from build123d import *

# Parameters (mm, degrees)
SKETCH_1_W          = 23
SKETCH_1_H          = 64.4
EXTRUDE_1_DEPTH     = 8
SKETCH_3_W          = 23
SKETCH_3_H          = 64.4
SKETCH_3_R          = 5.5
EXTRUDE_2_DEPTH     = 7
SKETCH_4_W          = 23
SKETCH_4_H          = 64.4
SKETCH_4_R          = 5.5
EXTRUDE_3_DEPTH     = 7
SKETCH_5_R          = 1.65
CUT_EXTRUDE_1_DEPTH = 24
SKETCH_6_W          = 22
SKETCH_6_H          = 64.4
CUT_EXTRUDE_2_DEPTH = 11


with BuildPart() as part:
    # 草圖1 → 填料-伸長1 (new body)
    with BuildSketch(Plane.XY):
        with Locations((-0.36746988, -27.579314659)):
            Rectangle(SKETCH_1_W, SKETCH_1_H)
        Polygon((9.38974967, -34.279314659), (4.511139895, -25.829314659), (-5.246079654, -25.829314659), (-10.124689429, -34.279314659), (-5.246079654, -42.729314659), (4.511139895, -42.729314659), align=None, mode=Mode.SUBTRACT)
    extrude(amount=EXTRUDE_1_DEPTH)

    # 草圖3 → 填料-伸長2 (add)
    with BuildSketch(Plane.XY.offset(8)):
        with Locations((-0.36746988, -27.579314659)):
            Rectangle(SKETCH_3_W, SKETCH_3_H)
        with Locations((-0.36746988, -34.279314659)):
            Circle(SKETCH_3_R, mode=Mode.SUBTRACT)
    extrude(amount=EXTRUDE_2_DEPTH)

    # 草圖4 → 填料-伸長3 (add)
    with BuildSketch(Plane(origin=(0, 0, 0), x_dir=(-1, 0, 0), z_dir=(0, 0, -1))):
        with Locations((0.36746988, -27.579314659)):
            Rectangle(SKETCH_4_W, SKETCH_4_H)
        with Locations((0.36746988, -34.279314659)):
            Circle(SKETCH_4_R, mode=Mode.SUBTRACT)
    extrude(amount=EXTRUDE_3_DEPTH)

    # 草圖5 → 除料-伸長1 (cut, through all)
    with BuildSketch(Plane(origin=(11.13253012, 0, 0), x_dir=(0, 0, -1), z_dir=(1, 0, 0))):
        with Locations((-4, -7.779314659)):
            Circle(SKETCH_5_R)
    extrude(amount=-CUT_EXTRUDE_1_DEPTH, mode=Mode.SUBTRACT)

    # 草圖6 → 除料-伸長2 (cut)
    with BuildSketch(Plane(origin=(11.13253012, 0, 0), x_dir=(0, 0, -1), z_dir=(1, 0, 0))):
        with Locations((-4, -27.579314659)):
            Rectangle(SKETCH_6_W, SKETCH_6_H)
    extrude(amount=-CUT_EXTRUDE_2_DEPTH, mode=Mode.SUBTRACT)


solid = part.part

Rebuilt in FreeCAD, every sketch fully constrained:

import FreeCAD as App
import Part
import Sketcher
from FreeCAD import Vector
Q = App.Units.Quantity

doc = App.newDocument("Part")
body = doc.addObject("PartDesign::Body", "Body")

# Sketch on XY plane
sketch1 = doc.addObject("Sketcher::SketchObject", "Sketch")
body.addObject(sketch1)
sketch1.AttachmentSupport = (doc.XY_Plane, [""])
sketch1.MapMode = "FlatFace"
sketch1.addGeometry([
    Part.LineSegment(Vector(-11.86747, 4.620685, 0), Vector(-11.86747, -59.779315, 0)),  # 0
    Part.LineSegment(Vector(-11.86747, -59.779315, 0), Vector(11.13253, -59.779315, 0)),  # 1
    Part.LineSegment(Vector(11.13253, -59.779315, 0), Vector(11.13253, 4.620685, 0)),  # 2
    Part.LineSegment(Vector(11.13253, 4.620685, 0), Vector(-11.86747, 4.620685, 0)),  # 3
    Part.LineSegment(Vector(4.51114, -25.829315, 0), Vector(9.38975, -34.279315, 0)),  # 4
    Part.LineSegment(Vector(9.38975, -34.279315, 0), Vector(4.51114, -42.729315, 0)),  # 5
    Part.LineSegment(Vector(4.51114, -42.729315, 0), Vector(-5.24608, -42.729315, 0)),  # 6
    Part.LineSegment(Vector(-5.24608, -42.729315, 0), Vector(-10.124689, -34.279315, 0)),  # 7
    Part.LineSegment(Vector(-10.124689, -34.279315, 0), Vector(-5.24608, -25.829315, 0)),  # 8
    Part.LineSegment(Vector(-5.24608, -25.829315, 0), Vector(4.51114, -25.829315, 0)),  # 9
], False)
sketch1.addConstraint([
    Sketcher.Constraint("Coincident", 0, 2, 1, 1),
    Sketcher.Constraint("Coincident", 1, 2, 2, 1),
    Sketcher.Constraint("Coincident", 2, 2, 3, 1),
    Sketcher.Constraint("Coincident", 3, 2, 0, 1),
    Sketcher.Constraint("Coincident", 4, 2, 5, 1),
    Sketcher.Constraint("Coincident", 5, 2, 6, 1),
    Sketcher.Constraint("Coincident", 6, 2, 7, 1),
    Sketcher.Constraint("Coincident", 7, 2, 8, 1),
    Sketcher.Constraint("Coincident", 8, 2, 9, 1),
    Sketcher.Constraint("Coincident", 9, 2, 4, 1),
    Sketcher.Constraint("Vertical", 0),
    Sketcher.Constraint("Horizontal", 1),
    Sketcher.Constraint("Vertical", 2),
    Sketcher.Constraint("Horizontal", 3),
    Sketcher.Constraint("Horizontal", 6),
    Sketcher.Constraint("Horizontal", 9),
    Sketcher.Constraint("Parallel", 4, 7),
    Sketcher.Constraint("Parallel", 5, 8),
    Sketcher.Constraint("Horizontal", 4, 2, 7, 2),
    Sketcher.Constraint("Vertical", 6, 2, 8, 2),
    Sketcher.Constraint("Vertical", 5, 2, 9, 2),
    Sketcher.Constraint("DistanceX", 1, 1, 1, 2, Q("23 mm")),
    Sketcher.Constraint("Angle", 4, Q("-60 deg")),
    Sketcher.Constraint("DistanceY", 0, 2, 0, 1, Q("64.4 mm")),
    Sketcher.Constraint("DistanceY", 1, 2, 4, 2, Q("25.5 mm")),
    Sketcher.Constraint("DistanceY", 6, 2, 8, 2, Q("16.9 mm")),
    Sketcher.Constraint("DistanceX", 6, 2, 6, 1, Q("9.75722 mm")),
    Sketcher.Constraint("DistanceX", 0, 2, -1, 1, Q("11.86747 mm")),
    Sketcher.Constraint("DistanceX", -1, 1, 4, 2, Q("9.38975 mm")),
    Sketcher.Constraint("DistanceY", 0, 2, -1, 1, Q("59.779315 mm")),
])
pad1 = doc.addObject("PartDesign::Pad", "Pad")
body.addObject(pad1)
pad1.Profile = sketch1
pad1.Length = 8

# Sketch on XY plane
sketch2 = doc.addObject("Sketcher::SketchObject", "Sketch001")
body.addObject(sketch2)
sketch2.AttachmentSupport = (doc.XY_Plane, [""])
sketch2.MapMode = "FlatFace"
sketch2.AttachmentOffset = App.Placement(Vector(0, 0, 8), App.Rotation())
sketch2.addGeometry([
    Part.LineSegment(Vector(-11.86747, 4.620685, 0), Vector(-11.86747, -59.779315, 0)),  # 0
    Part.LineSegment(Vector(-11.86747, -59.779315, 0), Vector(11.13253, -59.779315, 0)),  # 1
    Part.LineSegment(Vector(11.13253, -59.779315, 0), Vector(11.13253, 4.620685, 0)),  # 2
    Part.LineSegment(Vector(11.13253, 4.620685, 0), Vector(-11.86747, 4.620685, 0)),  # 3
    Part.Circle(Vector(-0.36747, -34.279315, 0), Vector(0, 0, 1), 5.5),  # 4
], False)
sketch2.addConstraint([
    Sketcher.Constraint("Coincident", 0, 2, 1, 1),
    Sketcher.Constraint("Coincident", 1, 2, 2, 1),
    Sketcher.Constraint("Coincident", 2, 2, 3, 1),
    Sketcher.Constraint("Coincident", 3, 2, 0, 1),
    Sketcher.Constraint("Vertical", 0),
    Sketcher.Constraint("Horizontal", 1),
    Sketcher.Constraint("Vertical", 2),
    Sketcher.Constraint("Horizontal", 3),
    Sketcher.Constraint("Diameter", 4, Q("11 mm")),
    Sketcher.Constraint("DistanceX", 1, 1, 1, 2, Q("23 mm")),
    Sketcher.Constraint("DistanceY", 0, 2, 0, 1, Q("64.4 mm")),
    Sketcher.Constraint("DistanceX", 0, 2, 4, 3, Q("11.5 mm")),
    Sketcher.Constraint("DistanceY", 0, 2, 4, 3, Q("25.5 mm")),
    Sketcher.Constraint("DistanceX", 4, 3, -1, 1, Q("0.36747 mm")),
    Sketcher.Constraint("DistanceY", 4, 3, -1, 1, Q("34.279315 mm")),
])
pad2 = doc.addObject("PartDesign::Pad", "Pad001")
body.addObject(pad2)
pad2.Profile = sketch2
pad2.Length = 7

# Sketch on XY plane
sketch3 = doc.addObject("Sketcher::SketchObject", "Sketch002")
body.addObject(sketch3)
sketch3.AttachmentSupport = (doc.XY_Plane, [""])
sketch3.MapMode = "FlatFace"
sketch3.addGeometry([
    Part.LineSegment(Vector(11.13253, 4.620685, 0), Vector(11.13253, -59.779315, 0)),  # 0
    Part.LineSegment(Vector(11.13253, -59.779315, 0), Vector(-11.86747, -59.779315, 0)),  # 1
    Part.LineSegment(Vector(-11.86747, -59.779315, 0), Vector(-11.86747, 4.620685, 0)),  # 2
    Part.LineSegment(Vector(-11.86747, 4.620685, 0), Vector(11.13253, 4.620685, 0)),  # 3
    Part.Circle(Vector(-0.36747, -34.279315, 0), Vector(0, 0, 1), 5.5),  # 4
], False)
sketch3.addConstraint([
    Sketcher.Constraint("Coincident", 0, 2, 1, 1),
    Sketcher.Constraint("Coincident", 1, 2, 2, 1),
    Sketcher.Constraint("Coincident", 2, 2, 3, 1),
    Sketcher.Constraint("Coincident", 3, 2, 0, 1),
    Sketcher.Constraint("Vertical", 0),
    Sketcher.Constraint("Horizontal", 1),
    Sketcher.Constraint("Vertical", 2),
    Sketcher.Constraint("Horizontal", 3),
    Sketcher.Constraint("Diameter", 4, Q("11 mm")),
    Sketcher.Constraint("DistanceX", 1, 2, 1, 1, Q("23 mm")),
    Sketcher.Constraint("DistanceY", 0, 2, 0, 1, Q("64.4 mm")),
    Sketcher.Constraint("DistanceX", 4, 3, 0, 2, Q("11.5 mm")),
    Sketcher.Constraint("DistanceY", 0, 2, 4, 3, Q("25.5 mm")),
    Sketcher.Constraint("DistanceX", 4, 3, -1, 1, Q("0.36747 mm")),
    Sketcher.Constraint("DistanceY", 4, 3, -1, 1, Q("34.279315 mm")),
])
pad3 = doc.addObject("PartDesign::Pad", "Pad002")
body.addObject(pad3)
pad3.Profile = sketch3
pad3.Length = 7
pad3.Reversed = True

# Sketch on YZ plane
sketch4 = doc.addObject("Sketcher::SketchObject", "Sketch003")
body.addObject(sketch4)
sketch4.AttachmentSupport = (doc.YZ_Plane, [""])
sketch4.MapMode = "FlatFace"
sketch4.AttachmentOffset = App.Placement(Vector(0, 0, 11.13253), App.Rotation())
sketch4.addGeometry(Part.Circle(Vector(-7.779315, 4, 0), Vector(0, 0, 1), 1.65), False)
sketch4.addConstraint([
    Sketcher.Constraint("Diameter", 0, Q("3.3 mm")),
    Sketcher.Constraint("DistanceY", -1, 1, 0, 3, Q("4 mm")),
    Sketcher.Constraint("DistanceX", 0, 3, -1, 1, Q("7.779315 mm")),
])
pocket1 = doc.addObject("PartDesign::Pocket", "Pocket")
body.addObject(pocket1)
pocket1.Profile = sketch4
pocket1.Type = "ThroughAll"

# Sketch on YZ plane
sketch5 = doc.addObject("Sketcher::SketchObject", "Sketch004")
body.addObject(sketch5)
sketch5.AttachmentSupport = (doc.YZ_Plane, [""])
sketch5.MapMode = "FlatFace"
sketch5.AttachmentOffset = App.Placement(Vector(0, 0, 11.13253), App.Rotation())
sketch5.addGeometry([
    Part.LineSegment(Vector(4.620685, 15, 0), Vector(-59.779315, 15, 0)),
    Part.LineSegment(Vector(-59.779315, 15, 0), Vector(-59.779315, -7, 0)),
    Part.LineSegment(Vector(-59.779315, -7, 0), Vector(4.620685, -7, 0)),
    Part.LineSegment(Vector(4.620685, -7, 0), Vector(4.620685, 15, 0)),
], False)
sketch5.addConstraint([
    Sketcher.Constraint("Coincident", 0, 2, 1, 1),
    Sketcher.Constraint("Coincident", 1, 2, 2, 1),
    Sketcher.Constraint("Coincident", 2, 2, 3, 1),
    Sketcher.Constraint("Coincident", 3, 2, 0, 1),
    Sketcher.Constraint("Horizontal", 0),
    Sketcher.Constraint("Vertical", 1),
    Sketcher.Constraint("Horizontal", 2),
    Sketcher.Constraint("Vertical", 3),
    Sketcher.Constraint("DistanceY", 1, 2, 1, 1, Q("22 mm")),
    Sketcher.Constraint("DistanceX", 0, 2, 0, 1, Q("64.4 mm")),
    Sketcher.Constraint("DistanceY", -1, 1, 0, 2, Q("15 mm")),
    Sketcher.Constraint("DistanceX", 0, 2, -1, 1, Q("59.779315 mm")),
])
pocket2 = doc.addObject("PartDesign::Pocket", "Pocket001")
body.addObject(pocket2)
pocket2.Profile = sketch5
pocket2.Length = 11

doc.recompute()
